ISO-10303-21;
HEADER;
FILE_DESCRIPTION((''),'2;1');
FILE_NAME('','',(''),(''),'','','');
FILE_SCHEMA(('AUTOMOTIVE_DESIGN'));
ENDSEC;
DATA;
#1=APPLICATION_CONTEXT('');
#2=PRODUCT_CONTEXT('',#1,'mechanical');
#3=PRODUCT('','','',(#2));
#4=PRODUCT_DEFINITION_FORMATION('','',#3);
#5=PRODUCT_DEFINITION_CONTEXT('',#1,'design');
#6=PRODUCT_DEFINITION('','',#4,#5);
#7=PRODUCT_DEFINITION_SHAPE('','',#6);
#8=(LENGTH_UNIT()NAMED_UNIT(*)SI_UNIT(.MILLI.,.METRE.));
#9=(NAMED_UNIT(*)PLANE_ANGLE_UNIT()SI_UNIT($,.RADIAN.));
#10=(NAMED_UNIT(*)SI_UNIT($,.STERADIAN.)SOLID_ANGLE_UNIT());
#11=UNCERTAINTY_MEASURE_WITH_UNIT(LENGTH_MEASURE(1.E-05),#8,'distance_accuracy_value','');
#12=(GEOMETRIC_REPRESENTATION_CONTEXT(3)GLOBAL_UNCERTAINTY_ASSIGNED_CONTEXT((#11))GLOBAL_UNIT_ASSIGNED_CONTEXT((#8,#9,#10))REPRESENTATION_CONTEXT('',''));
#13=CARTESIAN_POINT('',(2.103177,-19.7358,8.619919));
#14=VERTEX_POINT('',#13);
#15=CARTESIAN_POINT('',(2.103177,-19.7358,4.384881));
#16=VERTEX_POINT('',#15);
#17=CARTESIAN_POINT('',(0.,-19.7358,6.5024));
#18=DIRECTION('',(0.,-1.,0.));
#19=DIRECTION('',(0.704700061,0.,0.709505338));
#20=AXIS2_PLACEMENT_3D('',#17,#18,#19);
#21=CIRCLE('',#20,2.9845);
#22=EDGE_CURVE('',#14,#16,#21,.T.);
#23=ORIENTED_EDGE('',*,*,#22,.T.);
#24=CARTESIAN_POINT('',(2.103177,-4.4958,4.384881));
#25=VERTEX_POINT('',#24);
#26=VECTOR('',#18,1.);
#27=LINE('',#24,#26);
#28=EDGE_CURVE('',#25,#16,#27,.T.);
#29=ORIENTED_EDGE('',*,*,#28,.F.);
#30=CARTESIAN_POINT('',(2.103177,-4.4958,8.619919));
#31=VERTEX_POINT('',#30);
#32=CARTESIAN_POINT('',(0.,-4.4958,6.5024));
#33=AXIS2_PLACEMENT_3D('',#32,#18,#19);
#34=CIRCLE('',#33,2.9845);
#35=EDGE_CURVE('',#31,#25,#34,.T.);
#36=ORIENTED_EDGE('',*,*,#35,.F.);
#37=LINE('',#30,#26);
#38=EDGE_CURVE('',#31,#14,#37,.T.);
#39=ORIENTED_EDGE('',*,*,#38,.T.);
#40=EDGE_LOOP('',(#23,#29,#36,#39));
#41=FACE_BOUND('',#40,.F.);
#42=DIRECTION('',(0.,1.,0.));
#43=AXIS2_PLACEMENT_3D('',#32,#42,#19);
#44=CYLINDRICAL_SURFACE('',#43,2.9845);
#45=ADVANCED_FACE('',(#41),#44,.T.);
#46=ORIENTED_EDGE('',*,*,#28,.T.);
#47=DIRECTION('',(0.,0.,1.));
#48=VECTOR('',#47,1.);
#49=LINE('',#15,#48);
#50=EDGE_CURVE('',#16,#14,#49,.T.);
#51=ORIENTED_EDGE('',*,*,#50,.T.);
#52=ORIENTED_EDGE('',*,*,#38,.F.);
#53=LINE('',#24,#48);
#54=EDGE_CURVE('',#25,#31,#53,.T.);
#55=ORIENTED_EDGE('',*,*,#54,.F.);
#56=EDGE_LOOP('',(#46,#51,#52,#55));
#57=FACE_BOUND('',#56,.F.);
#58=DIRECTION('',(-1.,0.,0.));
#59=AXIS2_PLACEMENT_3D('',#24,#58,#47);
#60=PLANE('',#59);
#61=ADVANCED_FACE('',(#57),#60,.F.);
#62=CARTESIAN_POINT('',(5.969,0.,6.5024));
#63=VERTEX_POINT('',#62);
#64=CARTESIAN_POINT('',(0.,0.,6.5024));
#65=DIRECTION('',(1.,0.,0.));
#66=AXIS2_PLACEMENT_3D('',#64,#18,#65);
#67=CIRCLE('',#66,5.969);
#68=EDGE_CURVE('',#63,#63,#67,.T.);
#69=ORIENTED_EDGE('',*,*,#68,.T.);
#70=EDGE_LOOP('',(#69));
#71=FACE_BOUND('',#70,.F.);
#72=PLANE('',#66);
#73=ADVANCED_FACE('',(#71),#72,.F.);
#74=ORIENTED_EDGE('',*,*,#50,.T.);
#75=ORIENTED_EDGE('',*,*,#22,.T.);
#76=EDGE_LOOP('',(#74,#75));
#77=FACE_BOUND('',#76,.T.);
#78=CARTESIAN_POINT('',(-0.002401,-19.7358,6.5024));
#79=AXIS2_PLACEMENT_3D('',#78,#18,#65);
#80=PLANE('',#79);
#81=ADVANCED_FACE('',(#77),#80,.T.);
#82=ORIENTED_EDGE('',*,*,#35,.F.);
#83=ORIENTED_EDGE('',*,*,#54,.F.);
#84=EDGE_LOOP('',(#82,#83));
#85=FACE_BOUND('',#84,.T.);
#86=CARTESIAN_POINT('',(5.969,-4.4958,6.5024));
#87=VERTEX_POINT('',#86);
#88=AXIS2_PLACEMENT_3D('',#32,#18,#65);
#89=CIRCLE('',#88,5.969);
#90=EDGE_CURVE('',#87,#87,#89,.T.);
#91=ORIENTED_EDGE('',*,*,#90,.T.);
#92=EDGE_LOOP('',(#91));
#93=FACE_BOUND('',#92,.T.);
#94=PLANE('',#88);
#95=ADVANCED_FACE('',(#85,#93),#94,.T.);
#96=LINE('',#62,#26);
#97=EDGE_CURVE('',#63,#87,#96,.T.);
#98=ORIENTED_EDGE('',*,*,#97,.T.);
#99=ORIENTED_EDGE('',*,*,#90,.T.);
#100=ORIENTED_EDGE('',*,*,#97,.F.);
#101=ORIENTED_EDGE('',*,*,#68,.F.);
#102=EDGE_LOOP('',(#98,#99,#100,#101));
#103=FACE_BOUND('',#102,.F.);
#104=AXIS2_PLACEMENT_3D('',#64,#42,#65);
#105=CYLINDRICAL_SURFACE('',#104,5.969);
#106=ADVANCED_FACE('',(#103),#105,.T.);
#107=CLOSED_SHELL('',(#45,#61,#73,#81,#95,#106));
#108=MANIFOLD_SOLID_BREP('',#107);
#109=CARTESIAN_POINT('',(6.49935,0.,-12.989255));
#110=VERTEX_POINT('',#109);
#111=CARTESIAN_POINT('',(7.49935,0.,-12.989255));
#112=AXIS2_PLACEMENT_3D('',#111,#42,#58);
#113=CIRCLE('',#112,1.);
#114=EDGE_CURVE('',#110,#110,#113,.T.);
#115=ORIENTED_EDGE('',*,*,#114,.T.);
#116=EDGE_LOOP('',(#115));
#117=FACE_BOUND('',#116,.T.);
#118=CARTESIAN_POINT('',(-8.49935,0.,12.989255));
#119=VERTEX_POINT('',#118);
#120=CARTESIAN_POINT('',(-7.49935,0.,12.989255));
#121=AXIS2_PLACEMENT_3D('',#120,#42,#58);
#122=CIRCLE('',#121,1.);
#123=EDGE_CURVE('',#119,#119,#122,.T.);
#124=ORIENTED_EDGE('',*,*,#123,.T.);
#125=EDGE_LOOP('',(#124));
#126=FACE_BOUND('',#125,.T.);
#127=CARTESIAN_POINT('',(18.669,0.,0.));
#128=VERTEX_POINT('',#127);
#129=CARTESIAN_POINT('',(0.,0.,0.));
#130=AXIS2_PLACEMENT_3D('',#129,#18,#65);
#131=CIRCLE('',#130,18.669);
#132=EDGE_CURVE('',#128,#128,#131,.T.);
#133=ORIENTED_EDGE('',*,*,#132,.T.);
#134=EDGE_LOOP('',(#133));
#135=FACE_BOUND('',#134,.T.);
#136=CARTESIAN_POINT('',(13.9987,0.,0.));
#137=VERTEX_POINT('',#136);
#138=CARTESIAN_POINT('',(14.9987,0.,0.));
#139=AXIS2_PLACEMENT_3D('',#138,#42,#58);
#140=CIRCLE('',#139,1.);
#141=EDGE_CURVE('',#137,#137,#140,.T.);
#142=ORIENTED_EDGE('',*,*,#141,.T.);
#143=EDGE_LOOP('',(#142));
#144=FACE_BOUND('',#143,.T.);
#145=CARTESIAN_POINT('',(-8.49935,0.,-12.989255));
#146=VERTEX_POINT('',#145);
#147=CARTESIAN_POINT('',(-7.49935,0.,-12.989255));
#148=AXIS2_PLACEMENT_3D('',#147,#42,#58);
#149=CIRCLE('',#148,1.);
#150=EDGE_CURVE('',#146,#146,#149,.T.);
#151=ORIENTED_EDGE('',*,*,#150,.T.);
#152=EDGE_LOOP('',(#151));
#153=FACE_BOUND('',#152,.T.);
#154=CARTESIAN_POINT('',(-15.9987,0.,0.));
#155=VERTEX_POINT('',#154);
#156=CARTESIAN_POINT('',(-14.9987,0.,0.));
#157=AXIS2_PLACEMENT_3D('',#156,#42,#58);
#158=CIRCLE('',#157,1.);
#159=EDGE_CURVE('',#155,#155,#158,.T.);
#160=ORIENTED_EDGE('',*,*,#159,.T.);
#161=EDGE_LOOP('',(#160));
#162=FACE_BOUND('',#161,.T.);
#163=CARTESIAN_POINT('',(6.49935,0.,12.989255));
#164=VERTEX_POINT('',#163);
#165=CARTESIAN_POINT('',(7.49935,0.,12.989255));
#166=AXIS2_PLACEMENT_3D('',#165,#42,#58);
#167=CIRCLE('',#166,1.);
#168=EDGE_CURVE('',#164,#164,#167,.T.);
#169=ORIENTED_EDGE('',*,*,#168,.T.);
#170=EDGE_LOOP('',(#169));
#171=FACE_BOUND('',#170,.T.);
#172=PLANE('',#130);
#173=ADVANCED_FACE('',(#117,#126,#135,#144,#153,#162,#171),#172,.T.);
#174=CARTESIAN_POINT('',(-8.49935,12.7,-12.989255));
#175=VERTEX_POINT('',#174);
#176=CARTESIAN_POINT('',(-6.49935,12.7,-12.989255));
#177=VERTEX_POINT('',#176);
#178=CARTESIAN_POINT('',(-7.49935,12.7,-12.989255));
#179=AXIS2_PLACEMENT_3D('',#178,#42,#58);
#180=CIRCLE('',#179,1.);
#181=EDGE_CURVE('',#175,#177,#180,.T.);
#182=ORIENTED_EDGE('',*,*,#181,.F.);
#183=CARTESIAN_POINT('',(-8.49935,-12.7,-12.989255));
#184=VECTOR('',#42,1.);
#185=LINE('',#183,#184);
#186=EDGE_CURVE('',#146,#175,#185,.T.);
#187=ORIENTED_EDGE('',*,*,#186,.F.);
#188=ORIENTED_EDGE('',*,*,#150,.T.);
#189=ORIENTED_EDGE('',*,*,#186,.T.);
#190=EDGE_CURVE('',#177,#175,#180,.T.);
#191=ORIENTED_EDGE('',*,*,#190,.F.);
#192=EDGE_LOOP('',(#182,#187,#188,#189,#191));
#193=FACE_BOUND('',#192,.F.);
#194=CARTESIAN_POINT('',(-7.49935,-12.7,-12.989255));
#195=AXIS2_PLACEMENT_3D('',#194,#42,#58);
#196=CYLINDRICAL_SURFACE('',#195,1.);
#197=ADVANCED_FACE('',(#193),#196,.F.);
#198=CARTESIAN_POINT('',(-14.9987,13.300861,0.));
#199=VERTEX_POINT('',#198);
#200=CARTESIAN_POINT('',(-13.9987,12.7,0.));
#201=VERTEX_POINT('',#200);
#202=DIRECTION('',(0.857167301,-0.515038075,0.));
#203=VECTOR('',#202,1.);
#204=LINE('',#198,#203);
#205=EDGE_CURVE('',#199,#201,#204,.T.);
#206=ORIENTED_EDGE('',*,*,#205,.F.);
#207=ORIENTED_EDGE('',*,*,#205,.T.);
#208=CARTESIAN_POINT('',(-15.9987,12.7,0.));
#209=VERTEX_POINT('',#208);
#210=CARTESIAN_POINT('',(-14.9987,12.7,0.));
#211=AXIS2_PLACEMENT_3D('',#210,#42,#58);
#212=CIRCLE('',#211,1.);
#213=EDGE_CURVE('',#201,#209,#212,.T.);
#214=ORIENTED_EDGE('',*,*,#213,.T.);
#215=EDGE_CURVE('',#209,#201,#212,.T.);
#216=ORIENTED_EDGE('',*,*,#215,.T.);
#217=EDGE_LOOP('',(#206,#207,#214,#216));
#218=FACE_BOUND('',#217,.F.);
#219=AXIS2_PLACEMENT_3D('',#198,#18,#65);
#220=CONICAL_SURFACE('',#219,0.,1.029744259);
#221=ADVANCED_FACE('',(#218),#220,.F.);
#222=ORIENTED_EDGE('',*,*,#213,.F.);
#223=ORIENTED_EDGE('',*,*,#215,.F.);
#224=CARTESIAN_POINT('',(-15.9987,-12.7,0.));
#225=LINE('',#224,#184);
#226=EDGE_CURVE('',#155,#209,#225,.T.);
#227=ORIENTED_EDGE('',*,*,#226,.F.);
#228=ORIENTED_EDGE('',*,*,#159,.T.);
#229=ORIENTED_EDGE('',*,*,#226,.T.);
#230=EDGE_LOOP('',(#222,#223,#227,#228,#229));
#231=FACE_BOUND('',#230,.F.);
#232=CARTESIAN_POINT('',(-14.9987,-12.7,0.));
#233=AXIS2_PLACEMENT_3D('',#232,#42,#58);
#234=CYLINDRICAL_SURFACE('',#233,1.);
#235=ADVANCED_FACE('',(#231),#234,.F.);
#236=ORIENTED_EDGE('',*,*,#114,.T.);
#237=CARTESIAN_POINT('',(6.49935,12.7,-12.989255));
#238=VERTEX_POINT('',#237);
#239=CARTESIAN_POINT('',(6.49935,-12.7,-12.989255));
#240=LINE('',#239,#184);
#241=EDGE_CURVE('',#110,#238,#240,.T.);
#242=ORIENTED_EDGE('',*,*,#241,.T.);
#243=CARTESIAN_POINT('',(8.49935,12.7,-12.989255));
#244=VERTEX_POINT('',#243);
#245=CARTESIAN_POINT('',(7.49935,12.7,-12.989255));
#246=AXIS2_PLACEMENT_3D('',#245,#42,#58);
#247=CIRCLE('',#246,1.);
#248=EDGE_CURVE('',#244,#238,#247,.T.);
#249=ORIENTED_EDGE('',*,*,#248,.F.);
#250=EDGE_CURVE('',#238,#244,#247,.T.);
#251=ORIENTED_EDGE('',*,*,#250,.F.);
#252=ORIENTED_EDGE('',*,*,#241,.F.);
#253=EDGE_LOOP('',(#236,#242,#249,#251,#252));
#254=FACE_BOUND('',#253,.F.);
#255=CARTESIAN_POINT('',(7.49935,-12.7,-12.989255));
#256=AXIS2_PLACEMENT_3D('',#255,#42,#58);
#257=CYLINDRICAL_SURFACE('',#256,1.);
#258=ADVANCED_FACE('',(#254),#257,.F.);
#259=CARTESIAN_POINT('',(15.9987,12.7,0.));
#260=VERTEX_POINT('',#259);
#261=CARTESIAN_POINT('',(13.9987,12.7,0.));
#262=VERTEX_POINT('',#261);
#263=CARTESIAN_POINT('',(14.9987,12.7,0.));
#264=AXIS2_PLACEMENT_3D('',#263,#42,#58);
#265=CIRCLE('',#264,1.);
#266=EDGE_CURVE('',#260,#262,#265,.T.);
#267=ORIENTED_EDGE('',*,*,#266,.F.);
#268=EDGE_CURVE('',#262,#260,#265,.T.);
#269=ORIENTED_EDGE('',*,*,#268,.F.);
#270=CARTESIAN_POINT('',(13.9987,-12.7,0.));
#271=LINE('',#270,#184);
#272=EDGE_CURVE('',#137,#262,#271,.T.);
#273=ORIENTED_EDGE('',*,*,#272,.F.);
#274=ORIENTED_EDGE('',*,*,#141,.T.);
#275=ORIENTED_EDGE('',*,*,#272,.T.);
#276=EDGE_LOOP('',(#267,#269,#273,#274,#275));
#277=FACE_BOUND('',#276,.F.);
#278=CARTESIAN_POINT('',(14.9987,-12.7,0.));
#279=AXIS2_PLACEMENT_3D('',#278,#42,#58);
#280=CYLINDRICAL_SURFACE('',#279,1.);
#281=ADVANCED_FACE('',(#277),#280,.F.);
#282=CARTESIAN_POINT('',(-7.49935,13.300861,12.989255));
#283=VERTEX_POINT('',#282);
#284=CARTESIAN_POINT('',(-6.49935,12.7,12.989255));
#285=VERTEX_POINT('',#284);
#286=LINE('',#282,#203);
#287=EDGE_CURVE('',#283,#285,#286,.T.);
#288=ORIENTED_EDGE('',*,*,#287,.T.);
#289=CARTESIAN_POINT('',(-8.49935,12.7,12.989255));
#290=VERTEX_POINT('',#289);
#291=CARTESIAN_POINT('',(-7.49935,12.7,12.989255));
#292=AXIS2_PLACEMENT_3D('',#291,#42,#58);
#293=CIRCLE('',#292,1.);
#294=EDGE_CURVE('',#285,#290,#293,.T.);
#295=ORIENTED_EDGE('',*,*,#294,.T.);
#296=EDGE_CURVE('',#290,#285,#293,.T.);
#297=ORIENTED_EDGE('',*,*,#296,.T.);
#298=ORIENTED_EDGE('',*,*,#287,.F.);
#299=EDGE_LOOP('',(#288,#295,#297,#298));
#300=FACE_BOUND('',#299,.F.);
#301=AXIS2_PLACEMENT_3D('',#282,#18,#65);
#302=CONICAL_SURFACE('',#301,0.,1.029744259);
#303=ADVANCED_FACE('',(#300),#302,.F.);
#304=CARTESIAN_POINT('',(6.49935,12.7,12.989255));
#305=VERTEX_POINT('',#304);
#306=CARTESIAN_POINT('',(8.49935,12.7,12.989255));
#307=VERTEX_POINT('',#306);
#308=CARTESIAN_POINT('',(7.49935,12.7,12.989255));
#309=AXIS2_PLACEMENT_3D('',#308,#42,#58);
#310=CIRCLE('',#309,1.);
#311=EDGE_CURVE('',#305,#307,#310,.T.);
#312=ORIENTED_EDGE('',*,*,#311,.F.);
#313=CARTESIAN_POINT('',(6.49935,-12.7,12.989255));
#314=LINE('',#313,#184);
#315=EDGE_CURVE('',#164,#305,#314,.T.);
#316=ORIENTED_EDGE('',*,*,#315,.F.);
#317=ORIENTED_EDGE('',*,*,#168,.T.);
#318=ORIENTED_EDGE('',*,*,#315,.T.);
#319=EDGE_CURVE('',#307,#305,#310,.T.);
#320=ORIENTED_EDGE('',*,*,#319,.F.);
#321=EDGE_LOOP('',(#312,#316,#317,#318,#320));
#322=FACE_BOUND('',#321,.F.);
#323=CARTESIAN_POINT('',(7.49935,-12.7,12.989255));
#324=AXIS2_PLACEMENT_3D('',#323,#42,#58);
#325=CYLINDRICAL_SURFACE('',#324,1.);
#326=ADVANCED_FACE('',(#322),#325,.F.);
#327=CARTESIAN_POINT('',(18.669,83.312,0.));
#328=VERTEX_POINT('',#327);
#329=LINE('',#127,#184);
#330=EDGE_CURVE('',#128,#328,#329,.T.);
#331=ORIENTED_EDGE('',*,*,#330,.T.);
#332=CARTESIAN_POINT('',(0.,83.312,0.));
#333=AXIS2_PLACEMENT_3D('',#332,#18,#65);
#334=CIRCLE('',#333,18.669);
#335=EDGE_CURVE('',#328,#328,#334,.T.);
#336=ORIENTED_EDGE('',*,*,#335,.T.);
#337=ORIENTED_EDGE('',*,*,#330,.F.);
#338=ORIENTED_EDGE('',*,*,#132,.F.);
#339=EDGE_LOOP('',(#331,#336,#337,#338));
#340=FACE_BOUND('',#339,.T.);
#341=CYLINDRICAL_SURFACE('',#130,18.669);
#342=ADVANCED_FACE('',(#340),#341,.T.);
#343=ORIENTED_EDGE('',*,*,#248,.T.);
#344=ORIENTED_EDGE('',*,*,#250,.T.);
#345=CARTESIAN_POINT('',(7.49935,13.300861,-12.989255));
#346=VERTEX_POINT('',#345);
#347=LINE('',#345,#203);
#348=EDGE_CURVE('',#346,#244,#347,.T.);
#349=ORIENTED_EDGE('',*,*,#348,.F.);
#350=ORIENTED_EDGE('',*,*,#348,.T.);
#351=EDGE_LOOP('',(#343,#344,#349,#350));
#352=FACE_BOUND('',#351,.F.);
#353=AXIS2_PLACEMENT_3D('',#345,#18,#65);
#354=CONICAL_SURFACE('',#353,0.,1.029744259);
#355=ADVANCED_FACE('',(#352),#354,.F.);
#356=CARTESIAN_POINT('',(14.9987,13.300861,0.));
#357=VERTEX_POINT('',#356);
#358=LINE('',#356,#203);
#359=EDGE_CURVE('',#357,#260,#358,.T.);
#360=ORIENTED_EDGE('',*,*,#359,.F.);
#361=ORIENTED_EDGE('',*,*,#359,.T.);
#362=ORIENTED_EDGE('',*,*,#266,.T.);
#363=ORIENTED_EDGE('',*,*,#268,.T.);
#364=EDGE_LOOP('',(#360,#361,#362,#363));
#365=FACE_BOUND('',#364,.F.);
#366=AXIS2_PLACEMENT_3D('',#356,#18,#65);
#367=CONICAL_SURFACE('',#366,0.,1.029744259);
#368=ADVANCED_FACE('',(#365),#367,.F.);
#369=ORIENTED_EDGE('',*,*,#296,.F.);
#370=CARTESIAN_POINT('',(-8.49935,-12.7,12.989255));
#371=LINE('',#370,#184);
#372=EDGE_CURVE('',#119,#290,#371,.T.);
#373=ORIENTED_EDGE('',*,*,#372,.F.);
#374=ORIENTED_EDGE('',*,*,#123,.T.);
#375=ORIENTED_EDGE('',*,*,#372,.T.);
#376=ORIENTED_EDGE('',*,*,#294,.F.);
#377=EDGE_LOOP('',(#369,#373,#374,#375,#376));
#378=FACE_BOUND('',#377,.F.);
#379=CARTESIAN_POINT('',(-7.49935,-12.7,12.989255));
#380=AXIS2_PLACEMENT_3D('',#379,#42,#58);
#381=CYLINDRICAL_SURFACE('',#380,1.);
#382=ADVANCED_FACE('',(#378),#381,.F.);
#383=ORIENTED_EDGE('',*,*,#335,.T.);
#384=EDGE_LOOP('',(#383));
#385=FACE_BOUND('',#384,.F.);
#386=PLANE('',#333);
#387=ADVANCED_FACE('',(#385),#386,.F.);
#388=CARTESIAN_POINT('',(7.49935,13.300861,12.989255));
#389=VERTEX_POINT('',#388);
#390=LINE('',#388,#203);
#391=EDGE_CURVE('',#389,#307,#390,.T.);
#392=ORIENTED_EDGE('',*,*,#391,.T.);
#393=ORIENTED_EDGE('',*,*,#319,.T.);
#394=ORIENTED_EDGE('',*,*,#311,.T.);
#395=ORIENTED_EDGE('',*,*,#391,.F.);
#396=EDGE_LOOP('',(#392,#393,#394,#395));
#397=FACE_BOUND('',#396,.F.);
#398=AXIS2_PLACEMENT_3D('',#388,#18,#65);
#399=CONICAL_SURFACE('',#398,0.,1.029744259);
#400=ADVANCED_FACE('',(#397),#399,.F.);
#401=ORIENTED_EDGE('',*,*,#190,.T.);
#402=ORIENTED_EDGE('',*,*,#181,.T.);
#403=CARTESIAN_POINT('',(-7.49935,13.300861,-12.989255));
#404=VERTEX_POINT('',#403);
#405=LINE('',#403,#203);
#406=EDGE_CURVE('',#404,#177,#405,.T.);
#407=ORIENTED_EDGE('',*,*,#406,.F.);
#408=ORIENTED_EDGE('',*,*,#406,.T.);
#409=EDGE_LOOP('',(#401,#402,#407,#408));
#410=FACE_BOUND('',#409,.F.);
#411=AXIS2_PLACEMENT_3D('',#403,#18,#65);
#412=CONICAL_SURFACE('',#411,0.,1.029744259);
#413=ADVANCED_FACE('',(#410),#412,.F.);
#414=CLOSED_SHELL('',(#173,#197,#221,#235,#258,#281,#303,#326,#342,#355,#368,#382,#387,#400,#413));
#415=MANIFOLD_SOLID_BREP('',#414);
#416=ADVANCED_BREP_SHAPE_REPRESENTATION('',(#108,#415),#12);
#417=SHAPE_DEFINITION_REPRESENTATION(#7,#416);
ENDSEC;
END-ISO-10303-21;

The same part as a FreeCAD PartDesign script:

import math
import FreeCAD as App
import Part
import Sketcher
from FreeCAD import Vector
Q = App.Units.Quantity

doc = App.newDocument("Part")
params = doc.addObject("Spreadsheet::Sheet", "Params")
for row, (alias, value) in enumerate([
    ("sketch1_diameter", "1.47 in"),
    ("pad1_length", "3.28 in"),
    ("hole_diameter", "2 mm"),
    ("hole_depth", "0.5 in"),
    ("sketch3_diameter", "0.47 in"),
    ("pad2_length", "0.177 in"),
    ("pad3_length", "0.6 in"),
], start=1):
    params.set(f"A{row}", alias)
    params.set(f"B{row}", "=" + value)
    params.setAlias(f"B{row}", alias)

body = doc.addObject("PartDesign::Body", "Body")

# Sketch on XZ plane
sketch1 = body.newObject("Sketcher::SketchObject", "Sketch")
sketch1.AttachmentSupport = (doc.getObject("XZ_Plane"), [""])
sketch1.MapMode = "FlatFace"
sketch1.addGeometry(Part.Circle(Vector(0, 0, 0), Vector(0, 0, 1), 18.669), False)
sketch1.addConstraint(Sketcher.Constraint("Coincident", 0, 3, -1, 1))
sketch1.addConstraint(Sketcher.Constraint("Diameter", 0, Q("1.47 in")))
sketch1.setExpression("Constraints[1]", "Params.sketch1_diameter")
pad1 = body.newObject("PartDesign::Pad", "Pad")
pad1.Profile = sketch1
pad1.setExpression("Length", "Params.pad1_length")
pad1.Reversed = True

# Sketch on XZ plane
sketch2 = body.newObject("Sketcher::SketchObject", "Sketch001")
sketch2.AttachmentSupport = (doc.getObject("XZ_Plane"), [""])
sketch2.MapMode = "FlatFace"
sketch2.addGeometry(Part.Circle(Vector(-7.49935, 12.989255, 0), Vector(0, 0, 1), 1), False)
sketch2.addGeometry(Part.Circle(Vector(7.49935, 12.989255, 0), Vector(0, 0, 1), 1), False)
sketch2.addGeometry(Part.Circle(Vector(14.9987, 0, 0), Vector(0, 0, 1), 1), False)
sketch2.addGeometry(Part.Circle(Vector(7.49935, -12.989255, 0), Vector(0, 0, 1), 1), False)
sketch2.addGeometry(Part.Circle(Vector(-7.49935, -12.989255, 0), Vector(0, 0, 1), 1), False)
sketch2.addGeometry(Part.Circle(Vector(-14.9987, 0, 0), Vector(0, 0, 1), 1), False)
sketch2.addConstraint(Sketcher.Constraint("Equal", 0, 1))
sketch2.addConstraint(Sketcher.Constraint("Equal", 1, 2))
sketch2.addConstraint(Sketcher.Constraint("Equal", 2, 3))
sketch2.addConstraint(Sketcher.Constraint("Equal", 3, 4))
sketch2.addConstraint(Sketcher.Constraint("Equal", 4, 5))
sketch2.addConstraint(Sketcher.Constraint("Symmetric", 0, 3, 3, 3, -1, 1))
sketch2.addConstraint(Sketcher.Constraint("Symmetric", 1, 3, 4, 3, -1, 1))
sketch2.addConstraint(Sketcher.Constraint("Symmetric", 2, 3, 5, 3, -1, 1))
sketch2.addConstraint(Sketcher.Constraint("Symmetric", 0, 3, 1, 3, -2))
sketch2.addConstraint(Sketcher.Constraint("PointOnObject", 2, 3, -1))
sketch2.addConstraint(Sketcher.Constraint("Diameter", 0, 2.0))
sketch2.addConstraint(Sketcher.Constraint("DistanceX", 5, 3, 2, 3, Q("1.181 in")))
sketch2.addConstraint(Sketcher.Constraint("DistanceX", 0, 3, 1, 3, Q("0.5905 in")))
sketch2.addConstraint(Sketcher.Constraint("DistanceY", 3, 3, 1, 3, 25.97851))
doc.recompute()
hole = body.newObject("PartDesign::Hole", "Hole")
hole.Profile = sketch2
hole.ThreadType = "None"
hole.setExpression("Diameter", "Params.hole_diameter")
hole.DepthType = "Dimension"
hole.setExpression("Depth", "Params.hole_depth")
hole.DrillPoint = "Angled"
hole.DrillPointAngle = 118
body2 = doc.addObject("PartDesign::Body", "Body001")

# Sketch on XZ plane
sketch3 = body2.newObject("Sketcher::SketchObject", "Sketch002")
sketch3.AttachmentSupport = (doc.getObject("XZ_Plane001"), [""])
sketch3.MapMode = "FlatFace"
sketch3.addGeometry(Part.Circle(Vector(0, 6.5024, 0), Vector(0, 0, 1), 5.969), False)
sketch3.addConstraint(Sketcher.Constraint("PointOnObject", 0, 3, -2))
sketch3.addConstraint(Sketcher.Constraint("Diameter", 0, Q("0.47 in")))
sketch3.addConstraint(Sketcher.Constraint("DistanceY", -1, 1, 0, 3, Q("0.256 in")))
sketch3.setExpression("Constraints[1]", "Params.sketch3_diameter")
pad2 = body2.newObject("PartDesign::Pad", "Pad001")
pad2.Profile = sketch3
pad2.setExpression("Length", "Params.pad2_length")

# Sketch on XZ plane
sketch4 = body2.newObject("Sketcher::SketchObject", "Sketch003")
sketch4.AttachmentSupport = (doc.getObject("XZ_Plane001"), [""])
sketch4.MapMode = "FlatFace"
sketch4.AttachmentOffset = App.Placement(Vector(0, 0, 0.177 * 25.4), App.Rotation())
sketch4.addGeometry(Part.LineSegment(Vector(2.103177, 4.384881, 0), Vector(2.103177, 8.619919, 0)), False)
sketch4.addGeometry(Part.ArcOfCircle(Part.Circle(Vector(0, 6.5024, 0), Vector(0, 0, 1), 2.9845), math.radians(45.194682), math.radians(314.805318)), False)
sketch4.addConstraint(Sketcher.Constraint("Coincident", 0, 1, 1, 2))
sketch4.addConstraint(Sketcher.Constraint("Coincident", 1, 1, 0, 2))
sketch4.addConstraint(Sketcher.Constraint("Vertical", 0))
sketch4.addConstraint(Sketcher.Constraint("PointOnObject", 1, 3, -2))
sketch4.addConstraint(Sketcher.Constraint("Radius", 1, Q("0.1175 in")))
sketch4.addConstraint(Sketcher.Constraint("DistanceY", -1, 1, 1, 3, Q("0.256 in")))
sketch4.addConstraint(Sketcher.Constraint("DistanceY", 0, 1, 0, 2, 4.235037))
pad3 = body2.newObject("PartDesign::Pad", "Pad002")
pad3.Profile = sketch4
pad3.setExpression("Length", "Params.pad3_length")

doc.recompute()
